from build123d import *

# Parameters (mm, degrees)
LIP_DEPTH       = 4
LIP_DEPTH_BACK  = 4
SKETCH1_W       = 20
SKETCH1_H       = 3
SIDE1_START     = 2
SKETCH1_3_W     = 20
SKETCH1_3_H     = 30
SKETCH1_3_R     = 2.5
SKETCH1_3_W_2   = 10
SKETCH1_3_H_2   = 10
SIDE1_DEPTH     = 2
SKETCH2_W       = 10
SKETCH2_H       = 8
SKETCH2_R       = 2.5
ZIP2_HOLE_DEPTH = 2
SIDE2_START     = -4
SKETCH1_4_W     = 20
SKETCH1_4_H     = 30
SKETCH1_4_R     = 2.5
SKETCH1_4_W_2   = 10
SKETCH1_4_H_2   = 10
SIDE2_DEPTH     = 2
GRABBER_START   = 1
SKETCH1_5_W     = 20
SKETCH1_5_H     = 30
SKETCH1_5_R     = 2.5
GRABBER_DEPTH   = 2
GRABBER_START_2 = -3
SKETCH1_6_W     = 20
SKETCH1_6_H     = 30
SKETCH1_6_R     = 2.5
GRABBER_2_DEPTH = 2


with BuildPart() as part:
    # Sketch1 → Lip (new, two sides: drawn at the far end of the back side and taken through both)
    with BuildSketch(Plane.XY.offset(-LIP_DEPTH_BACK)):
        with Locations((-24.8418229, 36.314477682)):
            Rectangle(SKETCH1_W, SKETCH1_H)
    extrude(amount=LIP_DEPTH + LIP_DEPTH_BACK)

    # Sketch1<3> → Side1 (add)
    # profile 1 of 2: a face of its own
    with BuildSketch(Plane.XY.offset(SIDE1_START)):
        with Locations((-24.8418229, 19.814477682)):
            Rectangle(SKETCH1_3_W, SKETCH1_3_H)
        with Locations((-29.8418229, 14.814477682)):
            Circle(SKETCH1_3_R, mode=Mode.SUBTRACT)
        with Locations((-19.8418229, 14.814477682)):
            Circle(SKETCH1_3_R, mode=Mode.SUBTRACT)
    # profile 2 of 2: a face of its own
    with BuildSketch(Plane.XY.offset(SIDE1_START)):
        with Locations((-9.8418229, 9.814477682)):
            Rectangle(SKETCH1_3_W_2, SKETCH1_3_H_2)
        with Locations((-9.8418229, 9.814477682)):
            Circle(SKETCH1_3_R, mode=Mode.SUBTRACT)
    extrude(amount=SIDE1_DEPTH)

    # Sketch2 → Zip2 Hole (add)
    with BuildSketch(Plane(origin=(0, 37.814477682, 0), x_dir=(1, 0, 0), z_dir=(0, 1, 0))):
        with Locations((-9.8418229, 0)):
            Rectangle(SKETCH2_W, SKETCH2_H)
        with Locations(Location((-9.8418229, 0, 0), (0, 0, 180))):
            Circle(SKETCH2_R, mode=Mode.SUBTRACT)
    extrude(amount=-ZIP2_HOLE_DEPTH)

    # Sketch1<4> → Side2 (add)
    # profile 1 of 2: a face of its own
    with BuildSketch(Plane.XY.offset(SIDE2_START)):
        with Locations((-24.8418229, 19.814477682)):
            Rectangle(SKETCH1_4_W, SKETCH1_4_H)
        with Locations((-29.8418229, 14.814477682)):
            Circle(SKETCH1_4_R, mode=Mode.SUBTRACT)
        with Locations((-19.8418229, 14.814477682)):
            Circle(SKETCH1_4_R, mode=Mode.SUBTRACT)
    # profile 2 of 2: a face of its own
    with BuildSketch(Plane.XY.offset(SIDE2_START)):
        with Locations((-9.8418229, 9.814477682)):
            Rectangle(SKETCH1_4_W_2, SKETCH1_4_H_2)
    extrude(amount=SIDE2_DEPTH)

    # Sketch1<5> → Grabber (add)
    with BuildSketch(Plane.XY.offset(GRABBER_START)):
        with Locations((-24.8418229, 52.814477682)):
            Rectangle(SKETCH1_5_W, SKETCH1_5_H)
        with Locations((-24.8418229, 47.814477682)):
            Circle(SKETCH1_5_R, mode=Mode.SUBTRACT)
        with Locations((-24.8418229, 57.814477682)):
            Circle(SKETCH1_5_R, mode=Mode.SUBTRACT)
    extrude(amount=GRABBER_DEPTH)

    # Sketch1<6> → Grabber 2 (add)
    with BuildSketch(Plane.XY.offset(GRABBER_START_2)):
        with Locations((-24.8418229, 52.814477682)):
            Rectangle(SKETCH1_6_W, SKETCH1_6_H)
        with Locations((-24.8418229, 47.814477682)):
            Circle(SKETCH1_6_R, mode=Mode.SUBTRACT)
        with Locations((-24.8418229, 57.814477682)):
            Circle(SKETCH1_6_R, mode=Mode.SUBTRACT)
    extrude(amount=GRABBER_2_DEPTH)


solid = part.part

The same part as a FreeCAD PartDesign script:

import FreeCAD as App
import Part
import Sketcher
from FreeCAD import Vector
Q = App.Units.Quantity

doc = App.newDocument("Part")
body = doc.addObject("PartDesign::Body", "Body")

sketch1 = body.newObject("Sketcher::SketchObject", "Sketch")
sketch1.AttachmentSupport = (doc.getObject("XY_Plane"), [""])
sketch1.MapMode = "FlatFace"
sketch1.addGeometry([
    Part.LineSegment(Vector(-34.8, 37.8, 0), Vector(-34.8, 34.8, 0)),
    Part.LineSegment(Vector(-34.8, 34.8, 0), Vector(-14.8, 34.8, 0)),
    Part.LineSegment(Vector(-14.8, 34.8, 0), Vector(-14.8, 37.8, 0)),
    Part.LineSegment(Vector(-14.8, 37.8, 0), Vector(-34.8, 37.8, 0)),
], False)
sketch1.addConstraint([
    Sketcher.Constraint("Coincident", 0, 2, 1, 1),
    Sketcher.Constraint("Coincident", 1, 2, 2, 1),
    Sketcher.Constraint("Coincident", 2, 2, 3, 1),
    Sketcher.Constraint("Coincident", 3, 2, 0, 1),
    Sketcher.Constraint("Vertical", 0),
    Sketcher.Constraint("Horizontal", 1),
    Sketcher.Constraint("Vertical", 2),
    Sketcher.Constraint("Horizontal", 3),
    Sketcher.Constraint("DistanceX", 1, 1, 1, 2, Q("20 mm")),
    Sketcher.Constraint("DistanceY", 0, 2, 0, 1, Q("3 mm")),
    Sketcher.Constraint("DistanceX", 0, 2, -1, 1, Q("34.841823 mm")),
    Sketcher.Constraint("DistanceY", -1, 1, 0, 2, Q("34.814478 mm")),
])
pad1 = body.newObject("PartDesign::Pad", "Pad")
pad1.Profile = sketch1
pad1.Type = "TwoLengths"
pad1.Length = 4
pad1.Length2 = 4

sketch2 = body.newObject("Sketcher::SketchObject", "Sketch001")
sketch2.AttachmentSupport = (doc.getObject("XY_Plane"), [""])
sketch2.MapMode = "FlatFace"
sketch2.AttachmentOffset = App.Placement(Vector(0, 0, 2), App.Rotation())
sketch2.addGeometry([
    Part.LineSegment(Vector(-34.8, 34.8, 0), Vector(-34.8, 4.8, 0)),
    Part.LineSegment(Vector(-34.8, 4.8, 0), Vector(-4.8, 4.8, 0)),
    Part.LineSegment(Vector(-4.8, 4.8, 0), Vector(-4.8, 14.8, 0)),
    Part.LineSegment(Vector(-4.8, 14.8, 0), Vector(-14.8, 14.8, 0)),
    Part.LineSegment(Vector(-14.8, 14.8, 0), Vector(-14.8, 34.8, 0)),
    Part.LineSegment(Vector(-14.8, 34.8, 0), Vector(-34.8, 34.8, 0)),
    Part.Circle(Vector(-29.8, 14.8, 0), Vector(0, 0, 1), 2.5),
    Part.Circle(Vector(-19.8, 14.8, 0), Vector(0, 0, 1), 2.5),
    Part.Circle(Vector(-9.8, 9.8, 0), Vector(0, 0, 1), 2.5),
], False)
sketch2.addConstraint([
    Sketcher.Constraint("Coincident", 0, 2, 1, 1),
    Sketcher.Constraint("Coincident", 1, 2, 2, 1),
    Sketcher.Constraint("Coincident", 2, 2, 3, 1),
    Sketcher.Constraint("Coincident", 3, 2, 4, 1),
    Sketcher.Constraint("Coincident", 4, 2, 5, 1),
    Sketcher.Constraint("Coincident", 5, 2, 0, 1),
    Sketcher.Constraint("Vertical", 0),
    Sketcher.Constraint("Horizontal", 1),
    Sketcher.Constraint("Vertical", 2),
    Sketcher.Constraint("Horizontal", 3),
    Sketcher.Constraint("Vertical", 4),
    Sketcher.Constraint("Horizontal", 5),
    Sketcher.Constraint("Equal", 6, 7),
    Sketcher.Constraint("Equal", 7, 8),
    Sketcher.Constraint("Horizontal", 6, 3, 7, 3),
    Sketcher.Constraint("Horizontal", 7, 3, 2, 2),
    Sketcher.Constraint("Equal", 1, 0),
    Sketcher.Constraint("Equal", 3, 2),
    Sketcher.Constraint("Diameter", 6, Q("5 mm")),
    Sketcher.Constraint("DistanceX", 1, 1, 1, 2, Q("30 mm")),
    Sketcher.Constraint("DistanceX", 3, 2, 3, 1, Q("10 mm")),
    Sketcher.Constraint("DistanceX", 6, 3, 7, 3, Q("10 mm")),
    Sketcher.Constraint("DistanceX", 7, 3, 8, 3, Q("10 mm")),
    Sketcher.Constraint("DistanceY", 8, 3, 7, 3, Q("5 mm")),
    Sketcher.Constraint("DistanceX", 0, 2, 6, 3, Q("5 mm")),
    Sketcher.Constraint("DistanceX", 6, 3, -1, 1, Q("29.841823 mm")),
    Sketcher.Constraint("DistanceY", -1, 1, 6, 3, Q("14.814478 mm")),
])
pad2 = body.newObject("PartDesign::Pad", "Pad001")
pad2.Profile = sketch2
pad2.Length = 2

sketch3 = body.newObject("Sketcher::SketchObject", "Sketch002")
sketch3.AttachmentSupport = (doc.getObject("XZ_Plane"), [""])
sketch3.MapMode = "FlatFace"
sketch3.AttachmentOffset = App.Placement(Vector(0, 0, -37.814478), App.Rotation())
sketch3.addGeometry([
    Part.LineSegment(Vector(-14.8, -4, 0), Vector(-14.8, 4, 0)),
    Part.LineSegment(Vector(-14.8, 4, 0), Vector(-4.8, 4, 0)),
    Part.LineSegment(Vector(-4.8, 4, 0), Vector(-4.8, -4, 0)),
    Part.LineSegment(Vector(-4.8, -4, 0), Vector(-14.8, -4, 0)),
    Part.Circle(Vector(-9.8, 0, 0), Vector(0, 0, 1), 2.5),
], False)
sketch3.addConstraint([
    Sketcher.Constraint("Coincident", 0, 2, 1, 1),
    Sketcher.Constraint("Coincident", 1, 2, 2, 1),
    Sketcher.Constraint("Coincident", 2, 2, 3, 1),
    Sketcher.Constraint("Coincident", 3, 2, 0, 1),
    Sketcher.Constraint("Vertical", 0),
    Sketcher.Constraint("Horizontal", 1),
    Sketcher.Constraint("Vertical", 2),
    Sketcher.Constraint("Horizontal", 3),
    Sketcher.Constraint("PointOnObject", 4, 3, -1),
    Sketcher.Constraint("Diameter", 4, Q("5 mm")),
    Sketcher.Constraint("DistanceX", 1, 1, 1, 2, Q("10 mm")),
    Sketcher.Constraint("DistanceY", 0, 1, 0, 2, Q("8 mm")),
    Sketcher.Constraint("DistanceY", -1, 1, 0, 2, Q("4 mm")),
    Sketcher.Constraint("DistanceX", 0, 2, 4, 3, Q("5 mm")),
    Sketcher.Constraint("DistanceX", 4, 3, -1, 1, Q("9.841823 mm")),
])
pad3 = body.newObject("PartDesign::Pad", "Pad002")
pad3.Profile = sketch3
pad3.Length = 2

sketch4 = body.newObject("Sketcher::SketchObject", "Sketch003")
sketch4.AttachmentSupport = (doc.getObject("XY_Plane"), [""])
sketch4.MapMode = "FlatFace"
sketch4.AttachmentOffset = App.Placement(Vector(0, 0, -4), App.Rotation())
sketch4.addGeometry([
    Part.LineSegment(Vector(-34.8, 34.8, 0), Vector(-34.8, 4.8, 0)),
    Part.LineSegment(Vector(-34.8, 4.8, 0), Vector(-4.8, 4.8, 0)),
    Part.LineSegment(Vector(-4.8, 4.8, 0), Vector(-4.8, 14.8, 0)),
    Part.LineSegment(Vector(-4.8, 14.8, 0), Vector(-14.8, 14.8, 0)),
    Part.LineSegment(Vector(-14.8, 14.8, 0), Vector(-14.8, 34.8, 0)),
    Part.LineSegment(Vector(-14.8, 34.8, 0), Vector(-34.8, 34.8, 0)),
    Part.Circle(Vector(-29.8, 14.8, 0), Vector(0, 0, 1), 2.5),
    Part.Circle(Vector(-19.8, 14.8, 0), Vector(0, 0, 1), 2.5),
], False)
sketch4.addConstraint([
    Sketcher.Constraint("Coincident", 0, 2, 1, 1),
    Sketcher.Constraint("Coincident", 1, 2, 2, 1),
    Sketcher.Constraint("Coincident", 2, 2, 3, 1),
    Sketcher.Constraint("Coincident", 3, 2, 4, 1),
    Sketcher.Constraint("Coincident", 4, 2, 5, 1),
    Sketcher.Constraint("Coincident", 5, 2, 0, 1),
    Sketcher.Constraint("Vertical", 0),
    Sketcher.Constraint("Horizontal", 1),
    Sketcher.Constraint("Vertical", 2),
    Sketcher.Constraint("Horizontal", 3),
    Sketcher.Constraint("Vertical", 4),
    Sketcher.Constraint("Horizontal", 5),
    Sketcher.Constraint("Equal", 6, 7),
    Sketcher.Constraint("Horizontal", 6, 3, 7, 3),
    Sketcher.Constraint("Horizontal", 7, 3, 2, 2),
    Sketcher.Constraint("Equal", 1, 0),
    Sketcher.Constraint("Equal", 3, 2),
    Sketcher.Constraint("Diameter", 6, Q("5 mm")),
    Sketcher.Constraint("DistanceX", 1, 1, 1, 2, Q("30 mm")),
    Sketcher.Constraint("DistanceX", 3, 2, 3, 1, Q("10 mm")),
    Sketcher.Constraint("DistanceX", 6, 3, 7, 3, Q("10 mm")),
    Sketcher.Constraint("DistanceX", 0, 2, 6, 3, Q("5 mm")),
    Sketcher.Constraint("DistanceX", 6, 3, -1, 1, Q("29.841823 mm")),
    Sketcher.Constraint("DistanceY", -1, 1, 6, 3, Q("14.814478 mm")),
])
pad4 = body.newObject("PartDesign::Pad", "Pad003")
pad4.Profile = sketch4
pad4.Length = 2

sketch5 = body.newObject("Sketcher::SketchObject", "Sketch004")
sketch5.AttachmentSupport = (doc.getObject("XY_Plane"), [""])
sketch5.MapMode = "FlatFace"
sketch5.AttachmentOffset = App.Placement(Vector(0, 0, 1), App.Rotation())
sketch5.addGeometry([
    Part.LineSegment(Vector(-34.8, 67.8, 0), Vector(-34.8, 37.8, 0)),
    Part.LineSegment(Vector(-34.8, 37.8, 0), Vector(-14.8, 37.8, 0)),
    Part.LineSegment(Vector(-14.8, 37.8, 0), Vector(-14.8, 67.8, 0)),
    Part.LineSegment(Vector(-14.8, 67.8, 0), Vector(-34.8, 67.8, 0)),
    Part.Circle(Vector(-24.8, 47.8, 0), Vector(0, 0, 1), 2.5),
    Part.Circle(Vector(-24.8, 57.8, 0), Vector(0, 0, 1), 2.5),
], False)
sketch5.addConstraint([
    Sketcher.Constraint("Coincident", 0, 2, 1, 1),
    Sketcher.Constraint("Coincident", 1, 2, 2, 1),
    Sketcher.Constraint("Coincident", 2, 2, 3, 1),
    Sketcher.Constraint("Coincident", 3, 2, 0, 1),
    Sketcher.Constraint("Vertical", 0),
    Sketcher.Constraint("Horizontal", 1),
    Sketcher.Constraint("Vertical", 2),
    Sketcher.Constraint("Horizontal", 3),
    Sketcher.Constraint("Equal", 4, 5),
    Sketcher.Constraint("Vertical", 4, 3, 5, 3),
    Sketcher.Constraint("Diameter", 4, Q("5 mm")),
    Sketcher.Constraint("DistanceX", 1, 1, 1, 2, Q("20 mm")),
    Sketcher.Constraint("DistanceY", 0, 2, 0, 1, Q("30 mm")),
    Sketcher.Constraint("DistanceY", 4, 3, 5, 3, Q("10 mm")),
    Sketcher.Constraint("DistanceX", 0, 2, 4, 3, Q("10 mm")),
    Sketcher.Constraint("DistanceY", 0, 2, 4, 3, Q("10 mm")),
    Sketcher.Constraint("DistanceX", 4, 3, -1, 1, Q("24.841823 mm")),
    Sketcher.Constraint("DistanceY", -1, 1, 4, 3, Q("47.814478 mm")),
])
pad5 = body.newObject("PartDesign::Pad", "Pad004")
pad5.Profile = sketch5
pad5.Length = 2

sketch6 = body.newObject("Sketcher::SketchObject", "Sketch005")
sketch6.AttachmentSupport = (doc.getObject("XY_Plane"), [""])
sketch6.MapMode = "FlatFace"
sketch6.AttachmentOffset = App.Placement(Vector(0, 0, -3), App.Rotation())
sketch6.addGeometry([
    Part.LineSegment(Vector(-34.8, 67.8, 0), Vector(-34.8, 37.8, 0)),
    Part.LineSegment(Vector(-34.8, 37.8, 0), Vector(-14.8, 37.8, 0)),
    Part.LineSegment(Vector(-14.8, 37.8, 0), Vector(-14.8, 67.8, 0)),
    Part.LineSegment(Vector(-14.8, 67.8, 0), Vector(-34.8, 67.8, 0)),
    Part.Circle(Vector(-24.8, 47.8, 0), Vector(0, 0, 1), 2.5),
    Part.Circle(Vector(-24.8, 57.8, 0), Vector(0, 0, 1), 2.5),
], False)
sketch6.addConstraint([
    Sketcher.Constraint("Coincident", 0, 2, 1, 1),
    Sketcher.Constraint("Coincident", 1, 2, 2, 1),
    Sketcher.Constraint("Coincident", 2, 2, 3, 1),
    Sketcher.Constraint("Coincident", 3, 2, 0, 1),
    Sketcher.Constraint("Vertical", 0),
    Sketcher.Constraint("Horizontal", 1),
    Sketcher.Constraint("Vertical", 2),
    Sketcher.Constraint("Horizontal", 3),
    Sketcher.Constraint("Equal", 4, 5),
    Sketcher.Constraint("Vertical", 4, 3, 5, 3),
    Sketcher.Constraint("Diameter", 4, Q("5 mm")),
    Sketcher.Constraint("DistanceX", 1, 1, 1, 2, Q("20 mm")),
    Sketcher.Constraint("DistanceY", 0, 2, 0, 1, Q("30 mm")),
    Sketcher.Constraint("DistanceY", 4, 3, 5, 3, Q("10 mm")),
    Sketcher.Constraint("DistanceX", 0, 2, 4, 3, Q("10 mm")),
    Sketcher.Constraint("DistanceY", 0, 2, 4, 3, Q("10 mm")),
    Sketcher.Constraint("DistanceX", 4, 3, -1, 1, Q("24.841823 mm")),
    Sketcher.Constraint("DistanceY", -1, 1, 4, 3, Q("47.814478 mm")),
])
pad6 = body.newObject("PartDesign::Pad", "Pad005")
pad6.Profile = sketch6
pad6.Length = 2

doc.recompute()
